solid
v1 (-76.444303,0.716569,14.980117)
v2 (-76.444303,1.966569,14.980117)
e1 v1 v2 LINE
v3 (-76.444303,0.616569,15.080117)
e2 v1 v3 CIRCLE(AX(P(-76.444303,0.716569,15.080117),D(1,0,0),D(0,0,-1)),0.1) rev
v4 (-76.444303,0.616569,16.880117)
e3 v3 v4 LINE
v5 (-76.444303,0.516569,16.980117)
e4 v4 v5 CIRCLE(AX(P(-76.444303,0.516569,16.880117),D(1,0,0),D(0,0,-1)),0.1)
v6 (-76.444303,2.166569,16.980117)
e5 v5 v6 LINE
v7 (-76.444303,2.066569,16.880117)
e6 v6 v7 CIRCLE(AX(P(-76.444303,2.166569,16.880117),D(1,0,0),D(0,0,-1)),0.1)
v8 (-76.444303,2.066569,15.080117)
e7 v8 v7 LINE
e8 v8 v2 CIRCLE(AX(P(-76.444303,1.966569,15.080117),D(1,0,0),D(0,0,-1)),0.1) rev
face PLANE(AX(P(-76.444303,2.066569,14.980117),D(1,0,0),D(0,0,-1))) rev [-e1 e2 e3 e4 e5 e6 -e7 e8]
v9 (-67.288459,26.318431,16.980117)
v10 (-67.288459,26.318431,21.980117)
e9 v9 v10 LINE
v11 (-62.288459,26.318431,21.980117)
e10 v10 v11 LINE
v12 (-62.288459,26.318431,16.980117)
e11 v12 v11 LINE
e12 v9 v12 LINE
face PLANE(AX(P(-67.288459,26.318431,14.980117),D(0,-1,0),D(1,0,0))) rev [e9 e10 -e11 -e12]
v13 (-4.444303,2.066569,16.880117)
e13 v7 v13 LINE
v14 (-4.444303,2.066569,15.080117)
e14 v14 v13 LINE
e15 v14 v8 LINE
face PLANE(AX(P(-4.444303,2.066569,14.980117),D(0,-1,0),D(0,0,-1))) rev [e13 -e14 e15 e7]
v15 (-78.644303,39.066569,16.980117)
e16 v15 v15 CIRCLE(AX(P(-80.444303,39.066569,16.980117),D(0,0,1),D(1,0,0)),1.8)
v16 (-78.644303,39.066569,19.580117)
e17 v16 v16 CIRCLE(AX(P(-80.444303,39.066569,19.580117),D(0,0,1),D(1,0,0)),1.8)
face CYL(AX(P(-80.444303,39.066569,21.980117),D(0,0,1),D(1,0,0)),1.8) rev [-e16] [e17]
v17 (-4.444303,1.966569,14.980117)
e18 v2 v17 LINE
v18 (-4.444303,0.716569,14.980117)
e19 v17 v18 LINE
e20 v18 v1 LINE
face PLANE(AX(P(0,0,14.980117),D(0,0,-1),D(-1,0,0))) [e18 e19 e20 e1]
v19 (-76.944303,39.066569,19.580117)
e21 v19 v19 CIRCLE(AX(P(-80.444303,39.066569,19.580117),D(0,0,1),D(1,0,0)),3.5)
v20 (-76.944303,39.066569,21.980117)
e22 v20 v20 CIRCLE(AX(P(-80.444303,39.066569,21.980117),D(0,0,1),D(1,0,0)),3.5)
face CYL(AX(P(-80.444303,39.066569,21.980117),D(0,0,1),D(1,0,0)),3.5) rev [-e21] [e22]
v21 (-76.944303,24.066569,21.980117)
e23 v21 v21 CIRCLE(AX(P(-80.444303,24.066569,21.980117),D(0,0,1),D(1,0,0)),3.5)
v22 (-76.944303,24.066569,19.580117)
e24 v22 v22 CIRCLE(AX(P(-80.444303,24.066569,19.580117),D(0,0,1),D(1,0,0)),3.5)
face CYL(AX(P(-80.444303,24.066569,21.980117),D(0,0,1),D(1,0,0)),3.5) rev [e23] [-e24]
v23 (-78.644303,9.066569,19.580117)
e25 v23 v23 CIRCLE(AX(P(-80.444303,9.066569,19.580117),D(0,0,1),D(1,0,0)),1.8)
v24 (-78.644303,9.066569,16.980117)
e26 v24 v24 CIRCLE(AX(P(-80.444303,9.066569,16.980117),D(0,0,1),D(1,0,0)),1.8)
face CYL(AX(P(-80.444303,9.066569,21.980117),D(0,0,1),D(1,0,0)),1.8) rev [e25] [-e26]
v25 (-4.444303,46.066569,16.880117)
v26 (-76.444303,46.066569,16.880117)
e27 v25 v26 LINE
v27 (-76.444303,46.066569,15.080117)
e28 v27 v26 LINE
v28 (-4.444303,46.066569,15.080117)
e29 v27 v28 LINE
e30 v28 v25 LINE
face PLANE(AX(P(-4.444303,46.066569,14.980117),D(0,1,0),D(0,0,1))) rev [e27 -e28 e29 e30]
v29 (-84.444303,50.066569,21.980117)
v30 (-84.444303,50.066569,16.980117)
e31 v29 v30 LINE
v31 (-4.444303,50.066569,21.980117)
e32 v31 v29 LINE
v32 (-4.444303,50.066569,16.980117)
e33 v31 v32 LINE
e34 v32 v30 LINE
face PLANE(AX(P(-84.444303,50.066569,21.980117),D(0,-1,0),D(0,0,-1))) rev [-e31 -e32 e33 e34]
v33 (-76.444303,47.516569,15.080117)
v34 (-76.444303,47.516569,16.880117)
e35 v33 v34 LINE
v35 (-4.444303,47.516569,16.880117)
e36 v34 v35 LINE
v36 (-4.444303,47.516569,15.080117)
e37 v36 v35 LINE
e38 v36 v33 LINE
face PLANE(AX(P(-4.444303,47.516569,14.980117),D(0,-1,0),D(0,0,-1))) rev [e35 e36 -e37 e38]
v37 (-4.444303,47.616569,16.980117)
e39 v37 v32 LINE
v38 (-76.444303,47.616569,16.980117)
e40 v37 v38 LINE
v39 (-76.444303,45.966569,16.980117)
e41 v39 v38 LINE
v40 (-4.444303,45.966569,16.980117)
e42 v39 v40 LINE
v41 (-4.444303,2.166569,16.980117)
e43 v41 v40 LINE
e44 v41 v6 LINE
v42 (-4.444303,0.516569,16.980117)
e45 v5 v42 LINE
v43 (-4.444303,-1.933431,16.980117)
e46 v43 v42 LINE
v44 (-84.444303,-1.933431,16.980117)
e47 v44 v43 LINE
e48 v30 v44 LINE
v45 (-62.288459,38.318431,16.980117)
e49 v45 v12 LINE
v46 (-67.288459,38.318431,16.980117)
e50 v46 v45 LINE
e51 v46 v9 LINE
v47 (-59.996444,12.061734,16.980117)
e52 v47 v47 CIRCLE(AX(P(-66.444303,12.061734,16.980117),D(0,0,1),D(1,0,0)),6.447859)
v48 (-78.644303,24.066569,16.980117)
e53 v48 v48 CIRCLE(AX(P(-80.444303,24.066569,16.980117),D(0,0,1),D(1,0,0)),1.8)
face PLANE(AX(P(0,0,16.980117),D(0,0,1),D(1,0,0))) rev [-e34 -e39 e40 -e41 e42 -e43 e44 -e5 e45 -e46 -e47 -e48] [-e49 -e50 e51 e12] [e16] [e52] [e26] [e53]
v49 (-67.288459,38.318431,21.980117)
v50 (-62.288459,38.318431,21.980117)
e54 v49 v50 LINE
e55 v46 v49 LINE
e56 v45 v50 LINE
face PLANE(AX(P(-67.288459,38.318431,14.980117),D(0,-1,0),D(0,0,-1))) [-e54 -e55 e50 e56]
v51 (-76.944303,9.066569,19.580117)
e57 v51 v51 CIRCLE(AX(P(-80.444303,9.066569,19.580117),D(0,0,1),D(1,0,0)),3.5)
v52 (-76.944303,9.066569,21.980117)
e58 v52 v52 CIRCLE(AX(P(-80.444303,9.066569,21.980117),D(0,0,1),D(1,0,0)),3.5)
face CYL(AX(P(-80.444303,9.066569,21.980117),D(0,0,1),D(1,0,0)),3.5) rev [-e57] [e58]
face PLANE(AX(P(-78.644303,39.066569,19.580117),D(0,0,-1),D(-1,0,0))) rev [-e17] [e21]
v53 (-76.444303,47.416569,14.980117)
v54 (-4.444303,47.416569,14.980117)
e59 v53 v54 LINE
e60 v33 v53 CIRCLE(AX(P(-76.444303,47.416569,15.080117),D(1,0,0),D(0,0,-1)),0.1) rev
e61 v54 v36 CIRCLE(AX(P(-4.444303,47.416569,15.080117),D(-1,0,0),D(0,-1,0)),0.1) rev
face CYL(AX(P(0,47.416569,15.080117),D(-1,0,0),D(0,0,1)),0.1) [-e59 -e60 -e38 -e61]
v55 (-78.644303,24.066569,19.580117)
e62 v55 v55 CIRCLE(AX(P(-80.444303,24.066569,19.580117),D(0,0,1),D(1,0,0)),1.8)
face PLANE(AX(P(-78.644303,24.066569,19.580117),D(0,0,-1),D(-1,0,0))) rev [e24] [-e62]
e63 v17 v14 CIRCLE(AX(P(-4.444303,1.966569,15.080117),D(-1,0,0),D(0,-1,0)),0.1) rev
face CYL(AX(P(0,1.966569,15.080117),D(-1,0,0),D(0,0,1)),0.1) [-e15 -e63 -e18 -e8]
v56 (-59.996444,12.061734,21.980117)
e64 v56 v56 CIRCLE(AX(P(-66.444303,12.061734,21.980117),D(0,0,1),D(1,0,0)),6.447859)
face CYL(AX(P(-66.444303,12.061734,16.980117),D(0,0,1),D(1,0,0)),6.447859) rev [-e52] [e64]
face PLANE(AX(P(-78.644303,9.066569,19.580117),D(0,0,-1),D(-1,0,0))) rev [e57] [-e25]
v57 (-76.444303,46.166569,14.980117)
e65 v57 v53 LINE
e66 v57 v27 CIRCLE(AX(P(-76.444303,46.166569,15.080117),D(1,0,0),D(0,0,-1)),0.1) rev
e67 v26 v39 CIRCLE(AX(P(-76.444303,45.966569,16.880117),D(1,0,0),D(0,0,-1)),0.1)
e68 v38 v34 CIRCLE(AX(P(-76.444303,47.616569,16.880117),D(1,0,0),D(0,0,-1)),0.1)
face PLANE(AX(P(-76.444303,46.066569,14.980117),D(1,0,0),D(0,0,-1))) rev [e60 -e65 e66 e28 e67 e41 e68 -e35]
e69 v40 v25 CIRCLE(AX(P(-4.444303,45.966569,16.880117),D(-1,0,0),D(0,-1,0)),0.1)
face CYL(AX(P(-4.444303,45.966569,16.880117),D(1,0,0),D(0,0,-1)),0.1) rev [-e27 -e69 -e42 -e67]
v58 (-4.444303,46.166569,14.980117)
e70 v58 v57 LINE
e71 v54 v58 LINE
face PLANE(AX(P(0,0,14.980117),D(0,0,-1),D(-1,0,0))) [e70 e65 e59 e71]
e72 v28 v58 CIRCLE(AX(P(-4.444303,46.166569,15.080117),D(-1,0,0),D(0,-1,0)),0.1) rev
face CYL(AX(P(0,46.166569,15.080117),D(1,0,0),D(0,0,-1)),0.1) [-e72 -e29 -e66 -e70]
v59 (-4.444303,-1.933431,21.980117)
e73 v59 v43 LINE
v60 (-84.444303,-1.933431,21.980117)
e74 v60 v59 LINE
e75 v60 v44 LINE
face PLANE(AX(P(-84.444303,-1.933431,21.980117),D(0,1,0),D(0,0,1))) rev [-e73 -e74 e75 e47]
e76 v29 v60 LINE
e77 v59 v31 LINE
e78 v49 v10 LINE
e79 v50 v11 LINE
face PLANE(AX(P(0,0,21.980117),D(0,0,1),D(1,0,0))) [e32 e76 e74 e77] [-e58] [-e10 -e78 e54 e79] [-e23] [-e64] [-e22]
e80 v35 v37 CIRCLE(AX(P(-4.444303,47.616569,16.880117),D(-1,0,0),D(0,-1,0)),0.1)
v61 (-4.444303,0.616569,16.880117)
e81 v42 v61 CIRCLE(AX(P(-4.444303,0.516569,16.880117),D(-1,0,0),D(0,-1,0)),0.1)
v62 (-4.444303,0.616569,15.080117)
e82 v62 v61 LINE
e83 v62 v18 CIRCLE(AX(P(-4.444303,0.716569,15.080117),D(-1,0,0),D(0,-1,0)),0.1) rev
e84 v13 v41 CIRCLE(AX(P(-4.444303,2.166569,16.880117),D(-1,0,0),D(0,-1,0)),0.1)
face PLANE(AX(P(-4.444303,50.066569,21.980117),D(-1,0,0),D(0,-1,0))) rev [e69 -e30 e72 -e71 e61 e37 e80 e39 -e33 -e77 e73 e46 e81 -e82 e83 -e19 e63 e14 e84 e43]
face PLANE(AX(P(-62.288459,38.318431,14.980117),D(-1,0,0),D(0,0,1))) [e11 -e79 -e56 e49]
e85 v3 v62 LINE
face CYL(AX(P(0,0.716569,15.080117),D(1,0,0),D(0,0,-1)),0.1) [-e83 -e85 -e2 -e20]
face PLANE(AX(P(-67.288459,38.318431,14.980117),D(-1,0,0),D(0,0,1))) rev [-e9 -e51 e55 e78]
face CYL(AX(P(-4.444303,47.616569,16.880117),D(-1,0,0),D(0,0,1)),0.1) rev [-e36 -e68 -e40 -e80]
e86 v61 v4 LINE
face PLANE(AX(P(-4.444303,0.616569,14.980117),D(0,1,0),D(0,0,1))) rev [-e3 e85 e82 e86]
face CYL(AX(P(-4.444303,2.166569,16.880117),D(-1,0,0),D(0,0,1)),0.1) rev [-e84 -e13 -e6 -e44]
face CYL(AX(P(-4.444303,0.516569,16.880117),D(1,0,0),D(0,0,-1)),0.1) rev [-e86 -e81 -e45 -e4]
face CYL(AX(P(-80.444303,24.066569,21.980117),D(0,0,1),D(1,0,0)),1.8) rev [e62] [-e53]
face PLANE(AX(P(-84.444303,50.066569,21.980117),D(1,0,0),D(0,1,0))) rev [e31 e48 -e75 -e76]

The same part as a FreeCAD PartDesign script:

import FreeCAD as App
import Part
import Sketcher

V = App.Vector


def edges_at(feature, points):
    """Names of the edges that pass closest to the given points."""
    edges = feature.Shape.Edges
    near = lambda p: min(range(len(edges)), key=lambda i: edges[i].distToShape(Part.Vertex(*p))[0])
    return sorted({f"Edge{near(p) + 1}" for p in points})


def add_polygon(sketch, points):
    """Adds a closed chain of lines whose ends are joined by coincident constraints."""
    first, n = sketch.GeometryCount, len(points)
    for a, b in zip(points, points[1:] + points[:1]):
        sketch.addGeometry(Part.LineSegment(App.Vector(*a, 0), App.Vector(*b, 0)), False)
    for i in range(n):
        sketch.addConstraint(Sketcher.Constraint("Coincident", first + i, 2, first + (i + 1) % n, 1))

doc = App.newDocument("Part")
body = doc.addObject("PartDesign::Body", "Body")

sketch1 = doc.addObject("Sketcher::SketchObject", "Sketch")
body.addObject(sketch1)
sketch1.AttachmentSupport = (doc.XY_Plane, [""])
sketch1.MapMode = "FlatFace"
sketch1.AttachmentOffset = App.Placement(V(0, 0, 16.980117), App.Rotation())
add_polygon(sketch1, [(-84, 50), (-84, -2), (-4, -2), (-4, 50)])
sketch1.addConstraint([
    Sketcher.Constraint("Vertical", 0),
    Sketcher.Constraint("Horizontal", 1),
    Sketcher.Constraint("Vertical", 2),
    Sketcher.Constraint("Horizontal", 3),
    Sketcher.Constraint("DistanceX", 1, 1, 1, 2, 80.0),
    Sketcher.Constraint("DistanceY", 0, 2, 0, 1, 52.0),
    Sketcher.Constraint("DistanceY", 0, 2, -1, 1, 1.933431),
    Sketcher.Constraint("DistanceX", 0, 2, -1, 1, 84.444303),
])
pad1 = doc.addObject("PartDesign::Pad", "Pad")
body.addObject(pad1)
pad1.Profile = sketch1
pad1.Length = 5

sketch2 = doc.addObject("Sketcher::SketchObject", "Sketch001")
body.addObject(sketch2)
sketch2.AttachmentSupport = (doc.XY_Plane, [""])
sketch2.MapMode = "FlatFace"
sketch2.AttachmentOffset = App.Placement(V(0, 0, 21.980117), App.Rotation())
sketch2.addGeometry(Part.Circle(V(-66, 12, 0), V(0, 0, 1), 6), False)
sketch2.addConstraint([
    Sketcher.Constraint("Diameter", 0, 12.895719),
    Sketcher.Constraint("DistanceX", 0, 3, -1, 1, 66.444303),
    Sketcher.Constraint("DistanceY", -1, 1, 0, 3, 12.061734),
])
pocket1 = doc.addObject("PartDesign::Pocket", "Pocket")
body.addObject(pocket1)
pocket1.Profile = sketch2
pocket1.Length = 5

sketch3 = doc.addObject("Sketcher::SketchObject", "Sketch002")
body.addObject(sketch3)
sketch3.AttachmentSupport = (doc.XY_Plane, [""])
sketch3.MapMode = "FlatFace"
sketch3.AttachmentOffset = App.Placement(V(0, 0, 21.980117), App.Rotation())
sketch3.addGeometry([
    Part.Circle(V(-80.4, 9.1, 0), V(0, 0, 1), 1.8),
    Part.Circle(V(-80.4, 24.1, 0), V(0, 0, 1), 1.8),
    Part.Circle(V(-80.4, 39.1, 0), V(0, 0, 1), 1.8),
], False)
sketch3.addConstraint([
    Sketcher.Constraint("Equal", 0, 1),
    Sketcher.Constraint("Equal", 1, 2),
    Sketcher.Constraint("Vertical", 0, 3, 1, 3),
    Sketcher.Constraint("Vertical", 1, 3, 2, 3),
    Sketcher.Constraint("Diameter", 0, 3.6),
    Sketcher.Constraint("DistanceY", 0, 3, 1, 3, 15.0),
    Sketcher.Constraint("DistanceY", 1, 3, 2, 3, 15.0),
    Sketcher.Constraint("DistanceY", -1, 1, 0, 3, 9.066569),
    Sketcher.Constraint("DistanceX", 0, 3, -1, 1, 80.444303),
])
doc.recompute()
hole = doc.addObject("PartDesign::Hole", "Hole")
body.addObject(hole)
hole.Profile = sketch3
hole.ThreadType = "None"
hole.Diameter = 3.6
hole.DepthType = "ThroughAll"
hole.HoleCutType = "Counterbore"
hole.HoleCutDiameter = 7
hole.HoleCutDepth = 2.4

sketch4 = doc.addObject("Sketcher::SketchObject", "Sketch003")
body.addObject(sketch4)
sketch4.AttachmentSupport = (doc.XY_Plane, [""])
sketch4.MapMode = "FlatFace"
sketch4.AttachmentOffset = App.Placement(V(0, 0, 16.980117), App.Rotation())
add_polygon(sketch4, [(-4.4, 2.1), (-4.4, 0.6), (-76.4, 0.6), (-76.4, 2.1)])
add_polygon(sketch4, [(-4.4, 47.5), (-4.4, 46.1), (-76.4, 46.1), (-76.4, 47.5)])
sketch4.addConstraint([
    Sketcher.Constraint("Vertical", 0),
    Sketcher.Constraint("Horizontal", 1),
    Sketcher.Constraint("Vertical", 2),
    Sketcher.Constraint("Horizontal", 3),
    Sketcher.Constraint("Vertical", 4),
    Sketcher.Constraint("Horizontal", 5),
    Sketcher.Constraint("Vertical", 6),
    Sketcher.Constraint("Horizontal", 7),
    Sketcher.Constraint("Vertical", 3, 2, 4, 2),
    Sketcher.Constraint("Vertical", 2, 2, 5, 2),
    Sketcher.Constraint("Equal", 2, 4),
    Sketcher.Constraint("DistanceX", 1, 2, 1, 1, 72.0),
    Sketcher.Constraint("DistanceY", 3, 2, 4, 2, 44.0),
    Sketcher.Constraint("DistanceY", 0, 2, 0, 1, 1.45),
    Sketcher.Constraint("DistanceY", -1, 1, 0, 2, 0.616569),
    Sketcher.Constraint("DistanceX", 0, 2, -1, 1, 4.444303),
])
pad2 = doc.addObject("PartDesign::Pad", "Pad001")
body.addObject(pad2)
pad2.Profile = sketch4
pad2.Length = 2
pad2.Reversed = True
doc.recompute()

fillet = doc.addObject("PartDesign::Fillet", "Fillet")
body.addObject(fillet)
fillet.Base = (pad2, edges_at(pad2, [
    (-40.444, 0.617, 16.98),
    (-40.444, 2.067, 16.98),
    (-40.444, 0.617, 14.98),
    (-40.444, 2.067, 14.98),
    (-40.444, 46.067, 16.98),
    (-40.444, 47.517, 16.98),
    (-40.444, 46.067, 14.98),
    (-40.444, 47.517, 14.98),
]))
fillet.Radius = 0.1

sketch5 = doc.addObject("Sketcher::SketchObject", "Sketch004")
body.addObject(sketch5)
sketch5.AttachmentSupport = (doc.XY_Plane, [""])
sketch5.MapMode = "FlatFace"
sketch5.AttachmentOffset = App.Placement(V(0, 0, 21.980117), App.Rotation())
add_polygon(sketch5, [(-67, 38), (-67, 26), (-62, 26), (-62, 38)])
sketch5.addConstraint([
    Sketcher.Constraint("Vertical", 0),
    Sketcher.Constraint("Horizontal", 1),
    Sketcher.Constraint("Vertical", 2),
    Sketcher.Constraint("Horizontal", 3),
    Sketcher.Constraint("DistanceX", 1, 1, 1, 2, 5.0),
    Sketcher.Constraint("DistanceY", 0, 2, 0, 1, 12.0),
    Sketcher.Constraint("DistanceX", 0, 2, -1, 1, 67.288459),
    Sketcher.Constraint("DistanceY", -1, 1, 0, 2, 26.318431),
])
pocket2 = doc.addObject("PartDesign::Pocket", "Pocket001")
body.addObject(pocket2)
pocket2.Profile = sketch5
pocket2.Type = "ThroughAll"

doc.recompute()
